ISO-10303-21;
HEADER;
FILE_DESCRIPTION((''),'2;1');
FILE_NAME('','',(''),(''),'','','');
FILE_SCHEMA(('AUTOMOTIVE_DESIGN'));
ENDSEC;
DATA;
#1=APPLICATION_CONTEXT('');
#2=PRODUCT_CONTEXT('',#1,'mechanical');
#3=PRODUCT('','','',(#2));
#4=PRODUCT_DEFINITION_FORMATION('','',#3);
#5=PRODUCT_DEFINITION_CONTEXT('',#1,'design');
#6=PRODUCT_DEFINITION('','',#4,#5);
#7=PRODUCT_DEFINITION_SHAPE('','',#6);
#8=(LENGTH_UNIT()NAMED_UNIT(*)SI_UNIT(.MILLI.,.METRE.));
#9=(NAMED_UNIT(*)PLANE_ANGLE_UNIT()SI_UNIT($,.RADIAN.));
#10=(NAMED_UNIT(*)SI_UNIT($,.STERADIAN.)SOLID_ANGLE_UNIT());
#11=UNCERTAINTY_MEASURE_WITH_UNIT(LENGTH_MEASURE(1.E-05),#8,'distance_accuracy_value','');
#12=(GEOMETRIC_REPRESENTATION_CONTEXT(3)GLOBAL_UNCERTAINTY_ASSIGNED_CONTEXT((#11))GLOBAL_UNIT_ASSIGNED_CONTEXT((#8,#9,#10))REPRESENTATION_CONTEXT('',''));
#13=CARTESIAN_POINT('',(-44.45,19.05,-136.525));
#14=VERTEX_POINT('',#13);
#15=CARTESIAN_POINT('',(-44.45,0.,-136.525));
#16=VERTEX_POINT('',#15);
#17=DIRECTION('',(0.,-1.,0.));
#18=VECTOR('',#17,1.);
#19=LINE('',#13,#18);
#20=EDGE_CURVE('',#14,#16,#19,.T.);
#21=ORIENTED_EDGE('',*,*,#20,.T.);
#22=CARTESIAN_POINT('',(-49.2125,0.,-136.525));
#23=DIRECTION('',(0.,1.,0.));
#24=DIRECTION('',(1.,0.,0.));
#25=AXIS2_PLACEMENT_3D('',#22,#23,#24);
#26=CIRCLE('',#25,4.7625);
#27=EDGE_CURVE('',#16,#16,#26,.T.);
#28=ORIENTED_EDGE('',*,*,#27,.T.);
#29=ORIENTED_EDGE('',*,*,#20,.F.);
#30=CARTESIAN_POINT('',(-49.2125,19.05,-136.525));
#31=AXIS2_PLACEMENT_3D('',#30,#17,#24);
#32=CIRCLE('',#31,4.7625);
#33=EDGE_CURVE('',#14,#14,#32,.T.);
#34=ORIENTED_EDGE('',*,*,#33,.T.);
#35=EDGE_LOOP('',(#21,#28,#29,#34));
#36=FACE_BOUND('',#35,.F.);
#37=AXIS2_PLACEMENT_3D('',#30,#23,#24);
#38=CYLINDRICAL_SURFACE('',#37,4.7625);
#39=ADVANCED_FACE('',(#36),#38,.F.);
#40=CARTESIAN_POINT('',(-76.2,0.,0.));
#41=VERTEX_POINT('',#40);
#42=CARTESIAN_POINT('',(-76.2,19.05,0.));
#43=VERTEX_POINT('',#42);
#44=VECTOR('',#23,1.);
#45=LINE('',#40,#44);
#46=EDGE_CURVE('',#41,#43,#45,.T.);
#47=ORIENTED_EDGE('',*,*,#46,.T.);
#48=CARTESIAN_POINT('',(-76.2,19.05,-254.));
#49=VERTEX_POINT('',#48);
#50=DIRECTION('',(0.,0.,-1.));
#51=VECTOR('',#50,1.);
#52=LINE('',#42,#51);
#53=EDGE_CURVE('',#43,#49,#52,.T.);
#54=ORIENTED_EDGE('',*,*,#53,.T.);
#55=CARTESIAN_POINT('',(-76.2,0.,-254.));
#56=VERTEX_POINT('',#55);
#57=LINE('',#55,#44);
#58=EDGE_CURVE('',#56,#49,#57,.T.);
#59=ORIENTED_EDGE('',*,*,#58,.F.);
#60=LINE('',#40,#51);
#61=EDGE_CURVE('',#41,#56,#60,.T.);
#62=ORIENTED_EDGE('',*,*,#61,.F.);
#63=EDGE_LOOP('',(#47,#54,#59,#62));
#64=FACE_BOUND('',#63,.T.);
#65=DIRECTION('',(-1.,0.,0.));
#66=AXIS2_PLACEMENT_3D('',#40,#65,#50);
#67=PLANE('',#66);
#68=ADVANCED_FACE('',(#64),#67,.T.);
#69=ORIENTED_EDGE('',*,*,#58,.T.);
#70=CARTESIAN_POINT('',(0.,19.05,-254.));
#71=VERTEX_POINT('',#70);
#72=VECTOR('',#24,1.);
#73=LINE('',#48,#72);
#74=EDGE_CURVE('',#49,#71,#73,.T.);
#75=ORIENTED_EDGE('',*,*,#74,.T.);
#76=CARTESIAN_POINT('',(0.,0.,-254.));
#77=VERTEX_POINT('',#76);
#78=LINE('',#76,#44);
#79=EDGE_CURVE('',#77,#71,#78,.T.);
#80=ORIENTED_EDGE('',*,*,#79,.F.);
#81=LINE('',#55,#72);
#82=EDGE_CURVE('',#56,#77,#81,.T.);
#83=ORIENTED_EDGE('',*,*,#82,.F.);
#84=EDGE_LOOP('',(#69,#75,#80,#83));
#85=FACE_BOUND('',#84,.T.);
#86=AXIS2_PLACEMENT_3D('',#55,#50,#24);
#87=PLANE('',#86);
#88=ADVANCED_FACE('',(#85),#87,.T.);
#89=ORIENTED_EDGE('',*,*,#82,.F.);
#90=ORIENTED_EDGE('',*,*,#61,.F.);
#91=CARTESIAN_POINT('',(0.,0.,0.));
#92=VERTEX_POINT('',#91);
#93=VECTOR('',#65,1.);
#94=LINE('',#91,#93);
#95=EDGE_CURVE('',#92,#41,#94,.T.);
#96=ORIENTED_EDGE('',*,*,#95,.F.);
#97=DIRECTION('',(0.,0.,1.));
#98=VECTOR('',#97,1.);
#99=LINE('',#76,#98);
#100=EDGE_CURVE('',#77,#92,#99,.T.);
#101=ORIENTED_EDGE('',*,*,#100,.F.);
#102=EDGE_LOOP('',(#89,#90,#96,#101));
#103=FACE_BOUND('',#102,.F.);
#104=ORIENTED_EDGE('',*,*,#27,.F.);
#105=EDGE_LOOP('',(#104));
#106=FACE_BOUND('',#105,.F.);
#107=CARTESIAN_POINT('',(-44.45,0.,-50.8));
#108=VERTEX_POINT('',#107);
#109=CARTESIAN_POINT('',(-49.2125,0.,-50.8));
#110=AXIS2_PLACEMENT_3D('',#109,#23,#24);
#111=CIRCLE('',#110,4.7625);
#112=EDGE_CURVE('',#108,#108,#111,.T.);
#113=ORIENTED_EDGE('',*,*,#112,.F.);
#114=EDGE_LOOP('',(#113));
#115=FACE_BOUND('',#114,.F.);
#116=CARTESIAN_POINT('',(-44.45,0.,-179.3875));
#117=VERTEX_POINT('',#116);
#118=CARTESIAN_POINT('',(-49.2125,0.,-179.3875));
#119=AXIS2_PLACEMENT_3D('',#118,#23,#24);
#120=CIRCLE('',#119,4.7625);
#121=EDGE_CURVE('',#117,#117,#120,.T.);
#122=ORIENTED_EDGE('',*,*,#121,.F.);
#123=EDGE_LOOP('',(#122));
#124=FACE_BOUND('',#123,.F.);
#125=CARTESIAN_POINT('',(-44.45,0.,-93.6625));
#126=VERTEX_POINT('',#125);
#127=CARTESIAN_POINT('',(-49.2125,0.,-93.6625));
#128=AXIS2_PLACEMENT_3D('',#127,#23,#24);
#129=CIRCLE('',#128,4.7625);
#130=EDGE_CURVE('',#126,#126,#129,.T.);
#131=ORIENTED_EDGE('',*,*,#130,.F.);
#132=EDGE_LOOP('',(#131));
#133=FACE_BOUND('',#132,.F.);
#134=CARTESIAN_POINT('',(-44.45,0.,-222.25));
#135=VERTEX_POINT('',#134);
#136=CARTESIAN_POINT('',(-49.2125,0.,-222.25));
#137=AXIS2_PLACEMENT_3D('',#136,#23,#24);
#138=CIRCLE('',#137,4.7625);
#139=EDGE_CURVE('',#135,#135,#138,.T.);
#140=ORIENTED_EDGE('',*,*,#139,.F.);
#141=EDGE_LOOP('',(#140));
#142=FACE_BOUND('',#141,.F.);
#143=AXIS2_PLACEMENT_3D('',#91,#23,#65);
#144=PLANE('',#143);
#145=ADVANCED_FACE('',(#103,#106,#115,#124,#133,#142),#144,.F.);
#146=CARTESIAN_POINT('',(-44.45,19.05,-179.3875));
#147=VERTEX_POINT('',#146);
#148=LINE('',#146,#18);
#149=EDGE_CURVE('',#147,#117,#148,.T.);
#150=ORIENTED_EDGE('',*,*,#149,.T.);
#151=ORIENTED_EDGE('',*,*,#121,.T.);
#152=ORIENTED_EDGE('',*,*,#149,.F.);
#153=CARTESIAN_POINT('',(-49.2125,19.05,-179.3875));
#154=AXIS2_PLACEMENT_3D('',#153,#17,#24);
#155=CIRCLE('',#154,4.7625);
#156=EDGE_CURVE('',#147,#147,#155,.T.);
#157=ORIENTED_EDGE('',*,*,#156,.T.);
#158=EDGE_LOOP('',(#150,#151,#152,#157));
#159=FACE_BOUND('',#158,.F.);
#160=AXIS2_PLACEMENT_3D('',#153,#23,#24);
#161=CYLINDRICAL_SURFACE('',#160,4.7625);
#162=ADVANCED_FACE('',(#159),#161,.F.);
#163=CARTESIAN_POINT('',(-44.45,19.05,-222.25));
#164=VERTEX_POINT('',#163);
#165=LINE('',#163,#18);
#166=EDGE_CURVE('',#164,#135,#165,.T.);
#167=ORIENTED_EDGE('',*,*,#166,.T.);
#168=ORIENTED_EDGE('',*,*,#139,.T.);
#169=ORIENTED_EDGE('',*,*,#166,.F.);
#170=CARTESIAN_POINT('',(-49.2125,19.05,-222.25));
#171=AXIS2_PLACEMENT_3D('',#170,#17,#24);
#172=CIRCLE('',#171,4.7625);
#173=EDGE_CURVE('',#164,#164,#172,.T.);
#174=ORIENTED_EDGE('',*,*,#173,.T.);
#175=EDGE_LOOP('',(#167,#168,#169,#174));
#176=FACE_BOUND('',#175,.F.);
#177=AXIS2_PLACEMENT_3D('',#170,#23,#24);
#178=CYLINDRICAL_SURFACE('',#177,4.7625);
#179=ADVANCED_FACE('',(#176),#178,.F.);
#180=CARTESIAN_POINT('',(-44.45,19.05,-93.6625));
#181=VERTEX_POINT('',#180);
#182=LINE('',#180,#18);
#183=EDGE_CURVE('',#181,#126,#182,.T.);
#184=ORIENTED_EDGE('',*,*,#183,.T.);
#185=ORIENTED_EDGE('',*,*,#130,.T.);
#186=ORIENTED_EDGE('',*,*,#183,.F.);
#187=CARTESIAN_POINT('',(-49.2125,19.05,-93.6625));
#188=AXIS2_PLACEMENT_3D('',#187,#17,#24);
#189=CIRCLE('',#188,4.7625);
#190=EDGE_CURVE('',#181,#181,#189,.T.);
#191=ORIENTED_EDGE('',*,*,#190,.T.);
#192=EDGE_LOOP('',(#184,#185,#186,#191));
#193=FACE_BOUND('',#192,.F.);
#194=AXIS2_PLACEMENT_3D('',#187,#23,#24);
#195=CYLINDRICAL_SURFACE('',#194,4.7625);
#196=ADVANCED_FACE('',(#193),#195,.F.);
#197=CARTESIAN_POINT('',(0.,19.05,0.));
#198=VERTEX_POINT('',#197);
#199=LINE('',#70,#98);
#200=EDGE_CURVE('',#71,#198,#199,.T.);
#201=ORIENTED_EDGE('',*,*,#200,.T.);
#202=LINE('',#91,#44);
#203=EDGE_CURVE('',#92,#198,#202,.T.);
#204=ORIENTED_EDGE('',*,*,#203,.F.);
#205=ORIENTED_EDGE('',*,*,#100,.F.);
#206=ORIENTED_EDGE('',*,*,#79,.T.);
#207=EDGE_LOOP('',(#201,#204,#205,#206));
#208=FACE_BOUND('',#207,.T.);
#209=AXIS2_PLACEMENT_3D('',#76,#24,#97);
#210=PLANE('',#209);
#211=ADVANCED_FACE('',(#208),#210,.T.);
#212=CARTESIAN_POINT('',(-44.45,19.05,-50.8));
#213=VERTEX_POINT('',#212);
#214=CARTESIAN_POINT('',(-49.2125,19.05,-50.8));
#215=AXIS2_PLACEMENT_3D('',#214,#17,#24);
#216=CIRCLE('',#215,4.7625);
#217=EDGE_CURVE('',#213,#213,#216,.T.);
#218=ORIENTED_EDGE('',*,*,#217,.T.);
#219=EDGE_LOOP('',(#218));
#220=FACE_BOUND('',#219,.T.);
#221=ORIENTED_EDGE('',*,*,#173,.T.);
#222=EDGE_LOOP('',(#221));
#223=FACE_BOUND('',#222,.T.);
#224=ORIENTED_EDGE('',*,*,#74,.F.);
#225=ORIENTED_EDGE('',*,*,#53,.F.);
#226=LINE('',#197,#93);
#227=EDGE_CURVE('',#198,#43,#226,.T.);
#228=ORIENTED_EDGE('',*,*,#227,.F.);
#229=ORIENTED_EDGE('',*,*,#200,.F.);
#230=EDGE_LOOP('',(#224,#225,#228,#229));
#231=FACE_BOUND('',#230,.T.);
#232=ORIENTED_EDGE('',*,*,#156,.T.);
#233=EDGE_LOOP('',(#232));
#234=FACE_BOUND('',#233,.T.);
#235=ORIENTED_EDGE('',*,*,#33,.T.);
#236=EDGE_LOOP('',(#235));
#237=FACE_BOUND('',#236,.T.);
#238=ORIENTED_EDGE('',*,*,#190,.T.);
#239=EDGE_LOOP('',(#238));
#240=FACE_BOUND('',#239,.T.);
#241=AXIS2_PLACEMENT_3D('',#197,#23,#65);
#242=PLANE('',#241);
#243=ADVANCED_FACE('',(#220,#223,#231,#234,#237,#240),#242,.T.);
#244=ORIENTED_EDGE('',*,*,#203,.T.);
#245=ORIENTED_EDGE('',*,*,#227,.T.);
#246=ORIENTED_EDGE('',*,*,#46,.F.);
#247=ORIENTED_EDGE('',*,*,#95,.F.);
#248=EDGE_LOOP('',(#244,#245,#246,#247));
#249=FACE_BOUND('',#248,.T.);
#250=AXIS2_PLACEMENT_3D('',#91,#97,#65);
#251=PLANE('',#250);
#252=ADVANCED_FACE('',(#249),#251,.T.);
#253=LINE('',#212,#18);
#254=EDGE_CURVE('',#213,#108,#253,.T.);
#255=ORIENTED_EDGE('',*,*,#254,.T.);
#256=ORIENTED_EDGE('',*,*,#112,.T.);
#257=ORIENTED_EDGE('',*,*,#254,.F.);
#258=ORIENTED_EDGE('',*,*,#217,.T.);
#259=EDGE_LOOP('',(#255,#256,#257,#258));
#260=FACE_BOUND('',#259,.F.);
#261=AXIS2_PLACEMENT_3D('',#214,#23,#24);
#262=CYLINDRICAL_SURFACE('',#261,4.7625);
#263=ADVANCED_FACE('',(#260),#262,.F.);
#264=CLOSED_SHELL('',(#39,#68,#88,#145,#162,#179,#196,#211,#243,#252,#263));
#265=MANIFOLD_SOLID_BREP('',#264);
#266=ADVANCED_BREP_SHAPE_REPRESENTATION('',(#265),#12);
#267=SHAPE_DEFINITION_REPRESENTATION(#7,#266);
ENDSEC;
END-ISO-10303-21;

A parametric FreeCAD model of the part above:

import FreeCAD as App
import Part
import Sketcher

V = App.Vector
Q = App.Units.Quantity


def add_polygon(sketch, points):
    """Adds a closed chain of lines whose ends are joined by coincident constraints."""
    first, n = sketch.GeometryCount, len(points)
    for a, b in zip(points, points[1:] + points[:1]):
        sketch.addGeometry(Part.LineSegment(App.Vector(*a, 0), App.Vector(*b, 0)), False)
    for i in range(n):
        sketch.addConstraint(Sketcher.Constraint("Coincident", first + i, 2, first + (i + 1) % n, 1))

doc = App.newDocument("Part")
body = doc.addObject("PartDesign::Body", "Body")

sketch1 = body.newObject("Sketcher::SketchObject", "Sketch")
sketch1.AttachmentSupport = (doc.getObject("XZ_Plane"), [""])
sketch1.MapMode = "FlatFace"
add_polygon(sketch1, [(-76, 0), (0, 0), (0, -254), (-76, -254)])
sketch1.addConstraint([
    Sketcher.Constraint("Horizontal", 0),
    Sketcher.Constraint("Vertical", 1),
    Sketcher.Constraint("Horizontal", 2),
    Sketcher.Constraint("Vertical", 3),
    Sketcher.Constraint("Coincident", 0, 2, -1, 1),
    Sketcher.Constraint("DistanceX", 0, 1, 0, 2, Q("3 in")),
    Sketcher.Constraint("DistanceY", 1, 2, 1, 1, Q("10 in")),
])
pad1 = body.newObject("PartDesign::Pad", "Pad")
pad1.Profile = sketch1
pad1.Length = Q("0.75 in")
pad1.Reversed = True

sketch2 = body.newObject("Sketcher::SketchObject", "Sketch001")
sketch2.AttachmentSupport = (doc.getObject("XZ_Plane"), [""])
sketch2.MapMode = "FlatFace"
sketch2.AttachmentOffset = App.Placement(V(0, 0, -0.75 * 25.4), App.Rotation())
sketch2.addGeometry([
    Part.Circle(V(-49.2, -50.8, 0), V(0, 0, 1), 4.8),
    Part.Circle(V(-49.2, -222.2, 0), V(0, 0, 1), 4.8),
    Part.Circle(V(-49.2, -179.4, 0), V(0, 0, 1), 4.8),
    Part.Circle(V(-49.2, -136.5, 0), V(0, 0, 1), 4.8),
    Part.Circle(V(-49.2, -93.7, 0), V(0, 0, 1), 4.8),
], False)
sketch2.addConstraint([
    Sketcher.Constraint("Equal", 0, 1),
    Sketcher.Constraint("Equal", 1, 2),
    Sketcher.Constraint("Equal", 2, 3),
    Sketcher.Constraint("Equal", 3, 4),
    Sketcher.Constraint("Vertical", 0, 3, 1, 3),
    Sketcher.Constraint("Vertical", 1, 3, 2, 3),
    Sketcher.Constraint("Vertical", 2, 3, 3, 3),
    Sketcher.Constraint("Vertical", 3, 3, 4, 3),
    Sketcher.Constraint("Diameter", 0, Q("0.375 in")),
    Sketcher.Constraint("DistanceY", 0, 3, -1, 1, Q("2 in")),
    Sketcher.Constraint("DistanceY", 1, 3, 2, 3, Q("1.6875 in")),
    Sketcher.Constraint("DistanceY", 2, 3, 3, 3, Q("1.6875 in")),
    Sketcher.Constraint("DistanceY", 4, 3, 0, 3, Q("1.6875 in")),
    Sketcher.Constraint("DistanceY", 3, 3, 4, 3, Q("1.6875 in")),
    Sketcher.Constraint("DistanceX", 0, 3, -1, 1, Q("1.9375 in")),
])
pocket1 = body.newObject("PartDesign::Pocket", "Pocket")
pocket1.Profile = sketch2
pocket1.Length = Q("0.75 in")
pocket1.Reversed = True

doc.recompute()
